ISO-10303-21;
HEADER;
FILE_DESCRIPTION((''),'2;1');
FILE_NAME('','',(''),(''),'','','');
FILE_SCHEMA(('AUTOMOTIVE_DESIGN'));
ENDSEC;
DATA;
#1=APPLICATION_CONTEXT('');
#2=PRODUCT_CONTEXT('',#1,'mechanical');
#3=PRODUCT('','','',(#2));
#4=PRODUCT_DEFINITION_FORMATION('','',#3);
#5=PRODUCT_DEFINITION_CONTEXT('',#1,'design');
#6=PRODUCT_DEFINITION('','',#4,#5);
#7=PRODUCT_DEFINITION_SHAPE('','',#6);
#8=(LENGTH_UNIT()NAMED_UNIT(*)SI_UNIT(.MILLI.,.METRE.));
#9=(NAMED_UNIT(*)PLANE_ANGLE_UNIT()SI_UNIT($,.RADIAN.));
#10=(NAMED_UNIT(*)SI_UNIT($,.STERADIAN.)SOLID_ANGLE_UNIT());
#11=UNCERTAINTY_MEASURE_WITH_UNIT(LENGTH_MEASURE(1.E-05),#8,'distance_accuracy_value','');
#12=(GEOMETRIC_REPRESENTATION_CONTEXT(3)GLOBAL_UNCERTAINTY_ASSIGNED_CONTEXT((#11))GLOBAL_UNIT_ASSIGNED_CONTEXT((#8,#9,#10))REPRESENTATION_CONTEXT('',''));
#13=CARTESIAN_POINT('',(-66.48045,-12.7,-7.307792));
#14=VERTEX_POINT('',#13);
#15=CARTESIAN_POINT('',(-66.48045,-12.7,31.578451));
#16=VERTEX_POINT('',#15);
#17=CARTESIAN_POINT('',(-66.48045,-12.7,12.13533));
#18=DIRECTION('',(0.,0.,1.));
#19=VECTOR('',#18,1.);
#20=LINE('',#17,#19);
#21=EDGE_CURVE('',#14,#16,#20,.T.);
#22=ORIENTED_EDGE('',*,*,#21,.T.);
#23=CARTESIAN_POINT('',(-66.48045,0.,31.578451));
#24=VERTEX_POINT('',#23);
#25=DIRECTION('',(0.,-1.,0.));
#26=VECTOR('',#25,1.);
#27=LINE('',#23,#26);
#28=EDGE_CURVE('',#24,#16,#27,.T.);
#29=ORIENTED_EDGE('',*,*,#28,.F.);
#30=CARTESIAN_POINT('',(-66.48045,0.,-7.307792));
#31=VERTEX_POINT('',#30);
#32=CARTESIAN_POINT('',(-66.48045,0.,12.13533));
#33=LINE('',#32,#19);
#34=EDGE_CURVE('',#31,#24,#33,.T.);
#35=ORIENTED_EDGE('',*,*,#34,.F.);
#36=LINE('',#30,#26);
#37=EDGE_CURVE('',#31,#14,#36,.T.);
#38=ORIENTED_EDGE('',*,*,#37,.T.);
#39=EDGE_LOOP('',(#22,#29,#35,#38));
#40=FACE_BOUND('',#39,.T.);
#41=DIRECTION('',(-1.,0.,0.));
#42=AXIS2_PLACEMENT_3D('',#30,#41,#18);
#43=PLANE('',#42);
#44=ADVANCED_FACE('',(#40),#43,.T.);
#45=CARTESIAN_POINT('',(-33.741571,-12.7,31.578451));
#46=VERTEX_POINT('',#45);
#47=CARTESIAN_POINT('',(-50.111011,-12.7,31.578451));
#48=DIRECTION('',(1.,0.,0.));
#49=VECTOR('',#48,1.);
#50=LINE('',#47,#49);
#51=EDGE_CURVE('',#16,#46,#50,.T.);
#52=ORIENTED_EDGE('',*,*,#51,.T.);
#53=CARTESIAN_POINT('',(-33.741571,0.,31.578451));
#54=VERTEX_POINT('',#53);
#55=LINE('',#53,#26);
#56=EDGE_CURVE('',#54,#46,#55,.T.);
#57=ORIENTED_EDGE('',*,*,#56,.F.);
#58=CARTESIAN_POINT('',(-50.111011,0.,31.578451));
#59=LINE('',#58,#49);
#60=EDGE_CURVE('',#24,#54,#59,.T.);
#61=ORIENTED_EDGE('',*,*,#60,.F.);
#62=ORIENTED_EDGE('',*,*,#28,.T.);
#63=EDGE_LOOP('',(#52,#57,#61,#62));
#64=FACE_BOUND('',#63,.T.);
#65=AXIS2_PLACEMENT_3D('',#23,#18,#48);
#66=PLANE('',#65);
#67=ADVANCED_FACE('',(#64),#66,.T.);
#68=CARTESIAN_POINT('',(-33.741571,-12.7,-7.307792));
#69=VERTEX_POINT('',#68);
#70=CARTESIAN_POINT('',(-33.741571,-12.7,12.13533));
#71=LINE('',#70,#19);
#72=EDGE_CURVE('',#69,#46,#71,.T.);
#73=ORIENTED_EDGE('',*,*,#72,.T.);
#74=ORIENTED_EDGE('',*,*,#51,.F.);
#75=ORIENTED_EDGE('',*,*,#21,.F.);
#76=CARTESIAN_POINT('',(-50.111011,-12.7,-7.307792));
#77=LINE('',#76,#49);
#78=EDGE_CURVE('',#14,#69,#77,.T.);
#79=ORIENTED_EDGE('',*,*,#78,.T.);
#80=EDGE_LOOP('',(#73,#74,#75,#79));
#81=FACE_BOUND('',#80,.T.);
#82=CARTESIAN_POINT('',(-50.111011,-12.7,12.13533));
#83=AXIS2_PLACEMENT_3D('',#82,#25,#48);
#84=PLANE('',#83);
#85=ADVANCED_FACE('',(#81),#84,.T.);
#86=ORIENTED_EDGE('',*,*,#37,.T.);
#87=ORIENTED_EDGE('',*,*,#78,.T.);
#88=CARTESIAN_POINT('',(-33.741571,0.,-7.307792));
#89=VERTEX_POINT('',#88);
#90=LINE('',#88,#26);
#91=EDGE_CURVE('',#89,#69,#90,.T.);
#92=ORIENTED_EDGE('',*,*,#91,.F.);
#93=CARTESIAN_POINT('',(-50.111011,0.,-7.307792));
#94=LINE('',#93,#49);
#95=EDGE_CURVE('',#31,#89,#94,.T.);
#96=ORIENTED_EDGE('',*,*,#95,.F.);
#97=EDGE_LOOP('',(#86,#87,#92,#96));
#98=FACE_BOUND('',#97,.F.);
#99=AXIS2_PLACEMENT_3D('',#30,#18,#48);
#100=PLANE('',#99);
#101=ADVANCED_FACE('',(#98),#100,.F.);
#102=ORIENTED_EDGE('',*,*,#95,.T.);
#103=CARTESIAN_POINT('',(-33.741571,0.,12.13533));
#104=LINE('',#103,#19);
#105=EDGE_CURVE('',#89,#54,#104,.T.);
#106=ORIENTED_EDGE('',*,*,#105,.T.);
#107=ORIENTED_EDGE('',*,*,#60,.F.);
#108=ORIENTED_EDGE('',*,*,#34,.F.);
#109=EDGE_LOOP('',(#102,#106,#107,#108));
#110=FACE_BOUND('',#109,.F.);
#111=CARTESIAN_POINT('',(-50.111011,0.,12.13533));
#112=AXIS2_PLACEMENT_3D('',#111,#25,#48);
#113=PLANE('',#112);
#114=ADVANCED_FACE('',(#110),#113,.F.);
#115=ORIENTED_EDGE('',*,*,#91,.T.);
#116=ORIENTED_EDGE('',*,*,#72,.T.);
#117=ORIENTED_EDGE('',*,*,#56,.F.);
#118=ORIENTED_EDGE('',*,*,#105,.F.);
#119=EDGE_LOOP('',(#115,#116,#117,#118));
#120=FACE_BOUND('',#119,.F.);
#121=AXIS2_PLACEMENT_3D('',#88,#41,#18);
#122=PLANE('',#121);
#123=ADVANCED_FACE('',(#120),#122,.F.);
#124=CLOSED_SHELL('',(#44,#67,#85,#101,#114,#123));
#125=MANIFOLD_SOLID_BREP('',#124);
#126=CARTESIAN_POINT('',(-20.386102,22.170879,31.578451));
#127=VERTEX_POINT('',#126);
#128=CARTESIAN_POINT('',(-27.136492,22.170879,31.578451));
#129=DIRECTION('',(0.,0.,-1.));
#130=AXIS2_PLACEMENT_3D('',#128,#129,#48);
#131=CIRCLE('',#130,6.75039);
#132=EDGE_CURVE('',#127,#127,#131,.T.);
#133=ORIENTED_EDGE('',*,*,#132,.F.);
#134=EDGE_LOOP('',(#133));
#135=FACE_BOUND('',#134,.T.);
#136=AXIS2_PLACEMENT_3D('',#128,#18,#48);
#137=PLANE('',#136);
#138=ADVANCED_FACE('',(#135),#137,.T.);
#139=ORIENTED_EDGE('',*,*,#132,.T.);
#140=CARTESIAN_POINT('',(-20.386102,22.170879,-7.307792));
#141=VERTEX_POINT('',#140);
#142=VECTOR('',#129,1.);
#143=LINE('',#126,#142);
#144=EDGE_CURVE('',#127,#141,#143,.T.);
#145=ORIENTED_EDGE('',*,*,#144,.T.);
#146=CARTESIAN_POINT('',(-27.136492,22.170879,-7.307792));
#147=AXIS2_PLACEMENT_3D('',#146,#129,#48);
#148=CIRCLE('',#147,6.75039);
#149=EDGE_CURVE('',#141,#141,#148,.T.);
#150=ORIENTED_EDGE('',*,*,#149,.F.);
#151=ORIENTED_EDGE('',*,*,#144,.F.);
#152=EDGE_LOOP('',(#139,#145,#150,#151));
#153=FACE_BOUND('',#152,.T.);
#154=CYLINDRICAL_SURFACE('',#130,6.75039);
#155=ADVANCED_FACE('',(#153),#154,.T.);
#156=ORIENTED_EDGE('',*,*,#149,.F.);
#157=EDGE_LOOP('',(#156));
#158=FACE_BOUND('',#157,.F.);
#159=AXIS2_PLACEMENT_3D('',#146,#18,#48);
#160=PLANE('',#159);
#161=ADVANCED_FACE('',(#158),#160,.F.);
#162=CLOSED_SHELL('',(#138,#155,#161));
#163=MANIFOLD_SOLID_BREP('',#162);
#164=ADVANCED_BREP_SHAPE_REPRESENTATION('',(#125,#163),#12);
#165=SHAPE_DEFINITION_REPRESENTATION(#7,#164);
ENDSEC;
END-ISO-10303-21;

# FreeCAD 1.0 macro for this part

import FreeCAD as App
import Part
import Sketcher
from FreeCAD import Vector
Q = App.Units.Quantity

doc = App.newDocument("Part")
params = doc.addObject("Spreadsheet::Sheet", "Params")
for row, (alias, value) in enumerate([
    ("pad1_length", "0.5 in"),
], start=1):
    params.set(f"A{row}", alias)
    params.set(f"B{row}", "=" + value)
    params.setAlias(f"B{row}", alias)

body = doc.addObject("PartDesign::Body", "Body")

sketch1 = body.newObject("Sketcher::SketchObject", "Sketch")
sketch1.AttachmentSupport = (doc.getObject("XZ_Plane"), [""])
sketch1.MapMode = "FlatFace"
sketch1.addGeometry(Part.LineSegment(Vector(-66.48045, 31.578451, 0), Vector(-66.48045, -7.307792, 0)), False)
sketch1.addGeometry(Part.LineSegment(Vector(-66.48045, -7.307792, 0), Vector(-33.741571, -7.307792, 0)), False)
sketch1.addGeometry(Part.LineSegment(Vector(-33.741571, -7.307792, 0), Vector(-33.741571, 31.578451, 0)), False)
sketch1.addGeometry(Part.LineSegment(Vector(-33.741571, 31.578451, 0), Vector(-66.48045, 31.578451, 0)), False)
sketch1.addConstraint(Sketcher.Constraint("Coincident", 0, 2, 1, 1))
sketch1.addConstraint(Sketcher.Constraint("Coincident", 1, 2, 2, 1))
sketch1.addConstraint(Sketcher.Constraint("Coincident", 2, 2, 3, 1))
sketch1.addConstraint(Sketcher.Constraint("Coincident", 3, 2, 0, 1))
sketch1.addConstraint(Sketcher.Constraint("Vertical", 0))
sketch1.addConstraint(Sketcher.Constraint("Horizontal", 1))
sketch1.addConstraint(Sketcher.Constraint("Vertical", 2))
sketch1.addConstraint(Sketcher.Constraint("Horizontal", 3))
sketch1.addConstraint(Sketcher.Constraint("DistanceX", 1, 1, 1, 2, Q("32.738879 mm")))
sketch1.addConstraint(Sketcher.Constraint("DistanceY", 0, 2, 0, 1, Q("38.886243 mm")))
sketch1.addConstraint(Sketcher.Constraint("DistanceX", 0, 2, -1, 1, Q("66.48045 mm")))
sketch1.addConstraint(Sketcher.Constraint("DistanceY", 0, 2, -1, 1, Q("7.307792 mm")))
pad1 = body.newObject("PartDesign::Pad", "Pad")
pad1.Profile = sketch1
pad1.setExpression("Length", "Params.pad1_length")
body2 = doc.addObject("PartDesign::Body", "Body001")

sketch2 = body2.newObject("Sketcher::SketchObject", "Sketch001")
sketch2.AttachmentSupport = (doc.getObject("XY_Plane001"), [""])
sketch2.MapMode = "FlatFace"
sketch2.addGeometry(Part.Circle(Vector(-27.136492, 22.170879, 0), Vector(0, 0, 1), 6.75039), False)
sketch2.addConstraint(Sketcher.Constraint("Diameter", 0, Q("13.500779 mm")))
sketch2.addConstraint(Sketcher.Constraint("DistanceX", 0, 3, -1, 1, Q("27.136492 mm")))
sketch2.addConstraint(Sketcher.Constraint("DistanceY", -1, 1, 0, 3, Q("22.170879 mm")))

sketch3 = body2.newObject("Sketcher::SketchObject", "Sketch002")
sketch3.AttachmentSupport = (doc.getObject("XZ_Plane001"), [""])
sketch3.MapMode = "FlatFace"
sketch3.addGeometry(Part.LineSegment(Vector(-33.741571, 31.578451, 0), Vector(-33.741571, -7.307792, 0)), False)
sketch3.addConstraint(Sketcher.Constraint("Vertical", 0))
sketch3.addConstraint(Sketcher.Constraint("DistanceY", 0, 2, 0, 1, Q("38.886243 mm")))
sketch3.addConstraint(Sketcher.Constraint("DistanceX", 0, 1, -1, 1, Q("33.741571 mm")))
sketch3.addConstraint(Sketcher.Constraint("DistanceY", -1, 1, 0, 1, Q("31.578451 mm")))
doc.recompute()

additivepipe = body2.newObject("PartDesign::AdditivePipe", "AdditivePipe")
additivepipe.Profile = sketch2
additivepipe.Spine = (sketch3, ["Edge1"])

doc.recompute()
